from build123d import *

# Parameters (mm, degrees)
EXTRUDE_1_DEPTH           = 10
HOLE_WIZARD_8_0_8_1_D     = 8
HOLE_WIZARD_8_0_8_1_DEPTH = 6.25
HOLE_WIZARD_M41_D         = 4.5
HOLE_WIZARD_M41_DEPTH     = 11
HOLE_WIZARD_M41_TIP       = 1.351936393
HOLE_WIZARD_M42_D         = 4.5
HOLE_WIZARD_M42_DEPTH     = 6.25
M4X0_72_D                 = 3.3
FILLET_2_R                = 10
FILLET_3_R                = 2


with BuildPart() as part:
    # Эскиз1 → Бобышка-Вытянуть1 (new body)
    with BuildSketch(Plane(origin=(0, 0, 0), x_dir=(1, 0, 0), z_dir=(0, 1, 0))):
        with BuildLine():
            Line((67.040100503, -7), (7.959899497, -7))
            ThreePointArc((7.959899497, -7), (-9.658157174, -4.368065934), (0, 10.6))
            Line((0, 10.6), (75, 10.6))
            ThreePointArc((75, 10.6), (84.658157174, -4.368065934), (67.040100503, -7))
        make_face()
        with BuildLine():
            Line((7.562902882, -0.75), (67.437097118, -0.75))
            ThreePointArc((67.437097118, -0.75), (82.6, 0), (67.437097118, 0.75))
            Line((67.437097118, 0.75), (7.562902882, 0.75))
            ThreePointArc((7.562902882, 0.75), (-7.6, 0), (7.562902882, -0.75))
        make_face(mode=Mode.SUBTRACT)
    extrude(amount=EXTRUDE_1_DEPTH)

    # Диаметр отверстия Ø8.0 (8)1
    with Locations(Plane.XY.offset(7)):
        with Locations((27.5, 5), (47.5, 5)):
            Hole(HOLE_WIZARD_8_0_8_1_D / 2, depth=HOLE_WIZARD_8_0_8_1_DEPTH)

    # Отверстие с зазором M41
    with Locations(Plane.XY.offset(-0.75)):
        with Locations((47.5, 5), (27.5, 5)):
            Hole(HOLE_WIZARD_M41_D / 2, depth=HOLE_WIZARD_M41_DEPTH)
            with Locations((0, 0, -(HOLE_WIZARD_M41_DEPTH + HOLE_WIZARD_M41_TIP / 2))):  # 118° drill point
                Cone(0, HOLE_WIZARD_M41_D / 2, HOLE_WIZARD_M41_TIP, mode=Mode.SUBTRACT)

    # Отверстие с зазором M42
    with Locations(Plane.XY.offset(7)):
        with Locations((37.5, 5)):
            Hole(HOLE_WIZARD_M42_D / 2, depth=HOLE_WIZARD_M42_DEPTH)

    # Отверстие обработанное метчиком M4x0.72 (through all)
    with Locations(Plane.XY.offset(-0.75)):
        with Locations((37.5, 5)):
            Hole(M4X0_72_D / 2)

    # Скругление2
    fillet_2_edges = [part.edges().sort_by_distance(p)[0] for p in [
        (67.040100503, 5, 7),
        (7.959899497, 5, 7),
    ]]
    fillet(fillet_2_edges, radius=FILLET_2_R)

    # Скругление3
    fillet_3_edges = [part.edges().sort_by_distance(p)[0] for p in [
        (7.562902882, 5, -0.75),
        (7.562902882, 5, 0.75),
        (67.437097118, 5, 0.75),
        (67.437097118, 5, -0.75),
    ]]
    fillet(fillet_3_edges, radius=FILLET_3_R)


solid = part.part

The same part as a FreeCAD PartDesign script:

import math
import FreeCAD as App
import Part
import Sketcher

V = App.Vector
Q = App.Units.Quantity


def edges_at(feature, points):
    """Names of the edges that pass closest to the given points."""
    edges = feature.Shape.Edges
    near = lambda p: min(range(len(edges)), key=lambda i: edges[i].distToShape(Part.Vertex(*p))[0])
    return sorted({f"Edge{near(p) + 1}" for p in points})

doc = App.newDocument("Part")
body = doc.addObject("PartDesign::Body", "Body")

# Sketch on XZ plane
sketch1 = body.newObject("Sketcher::SketchObject", "Sketch")
sketch1.AttachmentSupport = (doc.getObject("XZ_Plane"), [""])
sketch1.MapMode = "FlatFace"
sketch1.addGeometry(Part.LineSegment(V(8, 7, 0), V(67, 7, 0)), False)
sketch1.addGeometry(Part.ArcOfCircle(Part.Circle(V(75, 0, 0), V(0, 0, 1), 10.6), math.radians(-90), math.radians(139)), False)
sketch1.addGeometry(Part.LineSegment(V(75, -10.6, 0), V(0, -10.6, 0)), False)
sketch1.addGeometry(Part.ArcOfCircle(Part.Circle(V(0, 0, 0), V(0, 0, 1), 10.6), math.radians(41), math.radians(270)), False)
sketch1.addGeometry(Part.ArcOfCircle(Part.Circle(V(0, 0, 0), V(0, 0, 1), 7.6), math.radians(6), math.radians(354)), False)
sketch1.addGeometry(Part.LineSegment(V(7.6, -0.8, 0), V(67.4, -0.8, 0)), False)
sketch1.addGeometry(Part.ArcOfCircle(Part.Circle(V(75, 0, 0), V(0, 0, 1), 7.6), math.radians(-174), math.radians(174)), False)
sketch1.addGeometry(Part.LineSegment(V(67.4, 0.8, 0), V(7.6, 0.8, 0)), False)
sketch1.addConstraint(Sketcher.Constraint("Coincident", 0, 2, 1, 2))
sketch1.addConstraint(Sketcher.Constraint("Tangent", 1, 1, 2, 1))
sketch1.addConstraint(Sketcher.Constraint("Tangent", 2, 2, 3, 2))
sketch1.addConstraint(Sketcher.Constraint("Coincident", 3, 1, 0, 1))
sketch1.addConstraint(Sketcher.Constraint("Coincident", 4, 2, 5, 1))
sketch1.addConstraint(Sketcher.Constraint("Coincident", 5, 2, 6, 1))
sketch1.addConstraint(Sketcher.Constraint("Coincident", 6, 2, 7, 1))
sketch1.addConstraint(Sketcher.Constraint("Coincident", 7, 2, 4, 1))
sketch1.addConstraint(Sketcher.Constraint("Horizontal", 0))
sketch1.addConstraint(Sketcher.Constraint("Horizontal", 2))
sketch1.addConstraint(Sketcher.Constraint("Horizontal", 5))
sketch1.addConstraint(Sketcher.Constraint("Horizontal", 7))
sketch1.addConstraint(Sketcher.Constraint("Coincident", 3, 3, -1, 1))
sketch1.addConstraint(Sketcher.Constraint("Coincident", 4, 3, -1, 1))
sketch1.addConstraint(Sketcher.Constraint("Coincident", 6, 3, 1, 3))
sketch1.addConstraint(Sketcher.Constraint("Equal", 1, 3))
sketch1.addConstraint(Sketcher.Constraint("Equal", 4, 6))
sketch1.addConstraint(Sketcher.Constraint("Vertical", 5, 2, 6, 2))
sketch1.addConstraint(Sketcher.Constraint("Radius", 1, Q("10.6 mm")))
sketch1.addConstraint(Sketcher.Constraint("Radius", 4, Q("7.6 mm")))
sketch1.addConstraint(Sketcher.Constraint("DistanceX", 2, 2, 2, 1, Q("75 mm")))
sketch1.addConstraint(Sketcher.Constraint("DistanceY", -1, 1, 0, 2, Q("7 mm")))
sketch1.addConstraint(Sketcher.Constraint("DistanceY", 5, 2, 6, 2, Q("1.5 mm")))
pad1 = body.newObject("PartDesign::Pad", "Pad")
pad1.Profile = sketch1
pad1.Length = 10
pad1.Reversed = True

# Sketch on XY plane
sketch2 = body.newObject("Sketcher::SketchObject", "Sketch001")
sketch2.AttachmentSupport = (doc.getObject("XY_Plane"), [""])
sketch2.MapMode = "FlatFace"
sketch2.AttachmentOffset = App.Placement(V(0, 0, 7), App.Rotation())
sketch2.addGeometry(Part.Circle(V(27.5, 5, 0), V(0, 0, 1), 4), False)
sketch2.addGeometry(Part.Circle(V(47.5, 5, 0), V(0, 0, 1), 4), False)
sketch2.addConstraint(Sketcher.Constraint("Equal", 0, 1))
sketch2.addConstraint(Sketcher.Constraint("Horizontal", 0, 3, 1, 3))
sketch2.addConstraint(Sketcher.Constraint("Diameter", 0, Q("8 mm")))
sketch2.addConstraint(Sketcher.Constraint("DistanceY", -1, 1, 0, 3, Q("5 mm")))
sketch2.addConstraint(Sketcher.Constraint("DistanceX", 0, 3, 1, 3, Q("20 mm")))
sketch2.addConstraint(Sketcher.Constraint("DistanceX", -1, 1, 0, 3, Q("27.5 mm")))
doc.recompute()
hole = body.newObject("PartDesign::Hole", "Hole")
hole.Profile = sketch2
hole.ThreadType = "None"
hole.Diameter = 8
hole.DepthType = "Dimension"
hole.Depth = 6.25
hole.DrillPoint = "Flat"

# Sketch on XY plane
sketch3 = body.newObject("Sketcher::SketchObject", "Sketch002")
sketch3.AttachmentSupport = (doc.getObject("XY_Plane"), [""])
sketch3.MapMode = "FlatFace"
sketch3.AttachmentOffset = App.Placement(V(0, 0, -0.75), App.Rotation())
sketch3.addGeometry(Part.Circle(V(47.5, 5, 0), V(0, 0, 1), 2.2), False)
sketch3.addGeometry(Part.Circle(V(27.5, 5, 0), V(0, 0, 1), 2.2), False)
sketch3.addConstraint(Sketcher.Constraint("Equal", 0, 1))
sketch3.addConstraint(Sketcher.Constraint("Horizontal", 0, 3, 1, 3))
sketch3.addConstraint(Sketcher.Constraint("Diameter", 0, Q("4.5 mm")))
sketch3.addConstraint(Sketcher.Constraint("DistanceY", -1, 1, 0, 3, Q("5 mm")))
sketch3.addConstraint(Sketcher.Constraint("DistanceX", 1, 3, 0, 3, Q("20 mm")))
sketch3.addConstraint(Sketcher.Constraint("DistanceX", -1, 1, 0, 3, Q("47.5 mm")))
doc.recompute()
hole2 = body.newObject("PartDesign::Hole", "Hole001")
hole2.Profile = sketch3
hole2.ThreadType = "None"
hole2.Diameter = 4.5
hole2.DepthType = "Dimension"
hole2.Depth = 11
hole2.DrillPoint = "Angled"
hole2.DrillPointAngle = 118

# Sketch on XY plane
sketch4 = body.newObject("Sketcher::SketchObject", "Sketch003")
sketch4.AttachmentSupport = (doc.getObject("XY_Plane"), [""])
sketch4.MapMode = "FlatFace"
sketch4.AttachmentOffset = App.Placement(V(0, 0, 7), App.Rotation())
sketch4.addGeometry(Part.Circle(V(37.5, 5, 0), V(0, 0, 1), 2.2), False)
sketch4.addConstraint(Sketcher.Constraint("Diameter", 0, Q("4.5 mm")))
sketch4.addConstraint(Sketcher.Constraint("DistanceY", -1, 1, 0, 3, Q("5 mm")))
sketch4.addConstraint(Sketcher.Constraint("DistanceX", -1, 1, 0, 3, Q("37.5 mm")))
doc.recompute()
hole3 = body.newObject("PartDesign::Hole", "Hole002")
hole3.Profile = sketch4
hole3.ThreadType = "None"
hole3.Diameter = 4.5
hole3.DepthType = "Dimension"
hole3.Depth = 6.25
hole3.DrillPoint = "Flat"

# Sketch on XY plane
sketch5 = body.newObject("Sketcher::SketchObject", "Sketch004")
sketch5.AttachmentSupport = (doc.getObject("XY_Plane"), [""])
sketch5.MapMode = "FlatFace"
sketch5.AttachmentOffset = App.Placement(V(0, 0, -0.75), App.Rotation())
sketch5.addGeometry(Part.Circle(V(37.5, 5, 0), V(0, 0, 1), 1.6), False)
sketch5.addConstraint(Sketcher.Constraint("Diameter", 0, Q("3.3 mm")))
sketch5.addConstraint(Sketcher.Constraint("DistanceY", -1, 1, 0, 3, Q("5 mm")))
sketch5.addConstraint(Sketcher.Constraint("DistanceX", -1, 1, 0, 3, Q("37.5 mm")))
doc.recompute()
hole4 = body.newObject("PartDesign::Hole", "Hole003")
hole4.Profile = sketch5
hole4.ThreadType = "None"
hole4.Diameter = 3.3
hole4.DepthType = "ThroughAll"
doc.recompute()

fillet = body.newObject("PartDesign::Fillet", "Fillet")
fillet.Base = (hole4, edges_at(hole4, [(67.04, 5, 7), (7.96, 5, 7)]))
fillet.Radius = 10
doc.recompute()

fillet2 = body.newObject("PartDesign::Fillet", "Fillet001")
fillet2.Base = (fillet, edges_at(fillet, [
    (7.563, 5, -0.75),
    (7.563, 5, 0.75),
    (67.437, 5, 0.75),
    (67.437, 5, -0.75),
]))
fillet2.Radius = 2

doc.recompute()
